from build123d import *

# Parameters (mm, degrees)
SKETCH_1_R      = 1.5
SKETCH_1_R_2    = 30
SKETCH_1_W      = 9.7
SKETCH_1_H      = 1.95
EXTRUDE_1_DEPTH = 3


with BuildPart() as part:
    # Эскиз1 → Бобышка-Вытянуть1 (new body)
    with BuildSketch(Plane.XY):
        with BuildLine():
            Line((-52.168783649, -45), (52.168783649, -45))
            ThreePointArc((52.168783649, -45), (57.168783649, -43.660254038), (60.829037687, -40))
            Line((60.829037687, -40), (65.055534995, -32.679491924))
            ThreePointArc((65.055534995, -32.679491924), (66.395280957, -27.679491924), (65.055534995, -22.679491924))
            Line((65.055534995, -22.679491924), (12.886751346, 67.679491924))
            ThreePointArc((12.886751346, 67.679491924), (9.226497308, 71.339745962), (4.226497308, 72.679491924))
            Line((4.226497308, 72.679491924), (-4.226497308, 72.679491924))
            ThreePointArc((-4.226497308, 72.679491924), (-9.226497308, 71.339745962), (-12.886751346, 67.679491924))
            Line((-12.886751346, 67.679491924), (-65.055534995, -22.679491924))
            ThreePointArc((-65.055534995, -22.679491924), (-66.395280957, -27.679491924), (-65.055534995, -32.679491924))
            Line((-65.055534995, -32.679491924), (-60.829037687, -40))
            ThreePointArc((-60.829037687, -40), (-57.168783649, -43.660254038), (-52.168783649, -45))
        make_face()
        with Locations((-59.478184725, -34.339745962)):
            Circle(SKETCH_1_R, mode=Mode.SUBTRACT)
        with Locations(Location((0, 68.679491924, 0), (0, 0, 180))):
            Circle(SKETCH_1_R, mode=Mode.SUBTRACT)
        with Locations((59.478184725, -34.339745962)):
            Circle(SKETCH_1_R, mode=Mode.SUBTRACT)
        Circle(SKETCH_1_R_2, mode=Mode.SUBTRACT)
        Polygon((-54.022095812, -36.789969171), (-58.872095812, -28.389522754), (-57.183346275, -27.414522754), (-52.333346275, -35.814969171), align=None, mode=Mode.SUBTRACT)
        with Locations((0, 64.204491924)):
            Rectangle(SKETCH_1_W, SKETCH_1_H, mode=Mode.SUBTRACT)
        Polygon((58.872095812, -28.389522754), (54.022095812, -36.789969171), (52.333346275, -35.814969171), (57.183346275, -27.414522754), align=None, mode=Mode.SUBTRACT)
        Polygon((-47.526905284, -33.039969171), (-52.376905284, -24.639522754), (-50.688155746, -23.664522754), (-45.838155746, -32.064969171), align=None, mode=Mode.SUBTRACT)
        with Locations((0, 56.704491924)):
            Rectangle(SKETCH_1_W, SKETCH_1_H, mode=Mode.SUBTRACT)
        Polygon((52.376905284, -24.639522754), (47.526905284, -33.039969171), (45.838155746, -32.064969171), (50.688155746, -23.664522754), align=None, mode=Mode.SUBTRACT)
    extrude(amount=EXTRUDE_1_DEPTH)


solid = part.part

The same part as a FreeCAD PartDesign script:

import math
import FreeCAD as App
import Part
import Sketcher

V = App.Vector
Q = App.Units.Quantity

doc = App.newDocument("Part")
params = doc.addObject("Spreadsheet::Sheet", "Params")
for row, (alias, value) in enumerate([
    ("sketch1_diameter", "3 mm"),
    ("sketch1_diameter2", "60 mm"),
    ("sketch1_radius", "10 mm"),
    ("sketch1_width", "9.7 mm"),
    ("sketch1_length", "9.7 mm"),
    ("pad1_length", "3 mm"),
], start=1):
    params.set(f"A{row}", alias)
    params.set(f"B{row}", "=" + value)
    params.setAlias(f"B{row}", alias)

body = doc.addObject("PartDesign::Body", "Body")

# Sketch on XY plane
sketch1 = body.newObject("Sketcher::SketchObject", "Sketch")
sketch1.AttachmentSupport = (doc.getObject("XY_Plane"), [""])
sketch1.MapMode = "FlatFace"
sketch1.addGeometry([
    Part.LineSegment(V(-52.2, -45, 0), V(52.2, -45, 0)),  # 0
    Part.ArcOfCircle(Part.Circle(V(52.2, -35, 0), V(0, 0, 1), 10), math.radians(-90), math.radians(-30)),  # 1
    Part.LineSegment(V(60.8, -40, 0), V(65.1, -32.7, 0)),  # 2
    Part.ArcOfCircle(Part.Circle(V(56.4, -27.7, 0), V(0, 0, 1), 10), math.radians(-30), math.radians(30)),  # 3
    Part.LineSegment(V(65.1, -22.7, 0), V(12.9, 67.7, 0)),  # 4
    Part.ArcOfCircle(Part.Circle(V(4.2, 62.7, 0), V(0, 0, 1), 10), math.radians(30), math.radians(90)),  # 5
    Part.LineSegment(V(4.2, 72.7, 0), V(-4.2, 72.7, 0)),  # 6
    Part.ArcOfCircle(Part.Circle(V(-4.2, 62.7, 0), V(0, 0, 1), 10), math.radians(90), math.radians(150)),  # 7
    Part.LineSegment(V(-12.9, 67.7, 0), V(-65.1, -22.7, 0)),  # 8
    Part.ArcOfCircle(Part.Circle(V(-56.4, -27.7, 0), V(0, 0, 1), 10), math.radians(150), math.radians(210)),  # 9
    Part.LineSegment(V(-65.1, -32.7, 0), V(-60.8, -40, 0)),  # 10
    Part.ArcOfCircle(Part.Circle(V(-52.2, -35, 0), V(0, 0, 1), 10), math.radians(-150), math.radians(-90)),  # 11
    Part.Circle(V(-59.5, -34.3, 0), V(0, 0, 1), 1.5),  # 12
    Part.LineSegment(V(-52.3, -35.8, 0), V(-54, -36.8, 0)),  # 13
    Part.LineSegment(V(-54, -36.8, 0), V(-58.9, -28.4, 0)),  # 14
    Part.LineSegment(V(-58.9, -28.4, 0), V(-57.2, -27.4, 0)),  # 15
    Part.LineSegment(V(-57.2, -27.4, 0), V(-52.3, -35.8, 0)),  # 16
    Part.LineSegment(V(-45.8, -32.1, 0), V(-47.5, -33, 0)),  # 17
    Part.LineSegment(V(-47.5, -33, 0), V(-52.4, -24.6, 0)),  # 18
    Part.LineSegment(V(-52.4, -24.6, 0), V(-50.7, -23.7, 0)),  # 19
    Part.LineSegment(V(-50.7, -23.7, 0), V(-45.8, -32.1, 0)),  # 20
    Part.Circle(V(59.5, -34.3, 0), V(0, 0, 1), 1.5),  # 21
    Part.LineSegment(V(57.2, -27.4, 0), V(58.9, -28.4, 0)),  # 22
    Part.LineSegment(V(58.9, -28.4, 0), V(54, -36.8, 0)),  # 23
    Part.LineSegment(V(54, -36.8, 0), V(52.3, -35.8, 0)),  # 24
    Part.LineSegment(V(52.3, -35.8, 0), V(57.2, -27.4, 0)),  # 25
    Part.LineSegment(V(50.7, -23.7, 0), V(52.4, -24.6, 0)),  # 26
    Part.LineSegment(V(52.4, -24.6, 0), V(47.5, -33, 0)),  # 27
    Part.LineSegment(V(47.5, -33, 0), V(45.8, -32.1, 0)),  # 28
    Part.LineSegment(V(45.8, -32.1, 0), V(50.7, -23.7, 0)),  # 29
    Part.Circle(V(0, 0, 0), V(0, 0, 1), 30),  # 30
    Part.LineSegment(V(4.8, 55.7, 0), V(-4.8, 55.7, 0)),  # 31
    Part.LineSegment(V(-4.8, 55.7, 0), V(-4.8, 57.7, 0)),  # 32
    Part.LineSegment(V(-4.8, 57.7, 0), V(4.8, 57.7, 0)),  # 33
    Part.LineSegment(V(4.8, 57.7, 0), V(4.8, 55.7, 0)),  # 34
    Part.LineSegment(V(4.8, 63.2, 0), V(-4.8, 63.2, 0)),  # 35
    Part.LineSegment(V(-4.8, 63.2, 0), V(-4.8, 65.2, 0)),  # 36
    Part.LineSegment(V(-4.8, 65.2, 0), V(4.8, 65.2, 0)),  # 37
    Part.LineSegment(V(4.8, 65.2, 0), V(4.8, 63.2, 0)),  # 38
    Part.Circle(V(0, 68.7, 0), V(0, 0, 1), 1.5),  # 39
], False)
sketch1.addConstraint([
    Sketcher.Constraint("Tangent", 0, 2, 1, 1),
    Sketcher.Constraint("Tangent", 1, 2, 2, 1),
    Sketcher.Constraint("Tangent", 2, 2, 3, 1),
    Sketcher.Constraint("Tangent", 3, 2, 4, 1),
    Sketcher.Constraint("Tangent", 4, 2, 5, 1),
    Sketcher.Constraint("Tangent", 5, 2, 6, 1),
    Sketcher.Constraint("Tangent", 6, 2, 7, 1),
    Sketcher.Constraint("Tangent", 7, 2, 8, 1),
    Sketcher.Constraint("Tangent", 8, 2, 9, 1),
    Sketcher.Constraint("Tangent", 9, 2, 10, 1),
    Sketcher.Constraint("Tangent", 10, 2, 11, 1),
    Sketcher.Constraint("Tangent", 11, 2, 0, 1),
    Sketcher.Constraint("Coincident", 13, 2, 14, 1),
    Sketcher.Constraint("Coincident", 14, 2, 15, 1),
    Sketcher.Constraint("Coincident", 15, 2, 16, 1),
    Sketcher.Constraint("Coincident", 16, 2, 13, 1),
    Sketcher.Constraint("Coincident", 17, 2, 18, 1),
    Sketcher.Constraint("Coincident", 18, 2, 19, 1),
    Sketcher.Constraint("Coincident", 19, 2, 20, 1),
    Sketcher.Constraint("Coincident", 20, 2, 17, 1),
    Sketcher.Constraint("Coincident", 22, 2, 23, 1),
    Sketcher.Constraint("Coincident", 23, 2, 24, 1),
    Sketcher.Constraint("Coincident", 24, 2, 25, 1),
    Sketcher.Constraint("Coincident", 25, 2, 22, 1),
    Sketcher.Constraint("Coincident", 26, 2, 27, 1),
    Sketcher.Constraint("Coincident", 27, 2, 28, 1),
    Sketcher.Constraint("Coincident", 28, 2, 29, 1),
    Sketcher.Constraint("Coincident", 29, 2, 26, 1),
    Sketcher.Constraint("Coincident", 31, 2, 32, 1),
    Sketcher.Constraint("Coincident", 32, 2, 33, 1),
    Sketcher.Constraint("Coincident", 33, 2, 34, 1),
    Sketcher.Constraint("Coincident", 34, 2, 31, 1),
    Sketcher.Constraint("Coincident", 35, 2, 36, 1),
    Sketcher.Constraint("Coincident", 36, 2, 37, 1),
    Sketcher.Constraint("Coincident", 37, 2, 38, 1),
    Sketcher.Constraint("Coincident", 38, 2, 35, 1),
    Sketcher.Constraint("Horizontal", 0),
    Sketcher.Constraint("Horizontal", 6),
    Sketcher.Constraint("Horizontal", 31),
    Sketcher.Constraint("Vertical", 32),
    Sketcher.Constraint("Horizontal", 33),
    Sketcher.Constraint("Vertical", 34),
    Sketcher.Constraint("Horizontal", 35),
    Sketcher.Constraint("Vertical", 36),
    Sketcher.Constraint("Horizontal", 37),
    Sketcher.Constraint("Vertical", 38),
    Sketcher.Constraint("Coincident", 30, 3, -1, 1),
    Sketcher.Constraint("Equal", 1, 3),
    Sketcher.Constraint("Equal", 3, 5),
    Sketcher.Constraint("Equal", 5, 7),
    Sketcher.Constraint("Equal", 7, 9),
    Sketcher.Constraint("Equal", 9, 11),
    Sketcher.Constraint("Equal", 12, 21),
    Sketcher.Constraint("Equal", 21, 39),
    Sketcher.Constraint("Symmetric", 3, 3, 9, 3, -2),
    Sketcher.Constraint("Symmetric", 12, 3, 21, 3, -2),
    Sketcher.Constraint("Symmetric", 14, 2, 22, 2, -2),
    Sketcher.Constraint("Symmetric", 13, 2, 23, 2, -2),
    Sketcher.Constraint("Symmetric", 16, 2, 24, 2, -2),
    Sketcher.Constraint("Symmetric", 15, 2, 25, 2, -2),
    Sketcher.Constraint("Symmetric", 18, 2, 26, 2, -2),
    Sketcher.Constraint("Symmetric", 17, 2, 27, 2, -2),
    Sketcher.Constraint("Symmetric", 20, 2, 28, 2, -2),
    Sketcher.Constraint("Symmetric", 19, 2, 29, 2, -2),
    Sketcher.Constraint("PointOnObject", 39, 3, -2),
    Sketcher.Constraint("Parallel", 2, 8),
    Sketcher.Constraint("Parallel", 4, 10),
    Sketcher.Constraint("Perpendicular", 10, 13),
    Sketcher.Constraint("Perpendicular", 13, 14),
    Sketcher.Constraint("Perpendicular", 14, 15),
    Sketcher.Constraint("Perpendicular", 15, 16),
    Sketcher.Constraint("Perpendicular", 16, 17),
    Sketcher.Constraint("Perpendicular", 17, 18),
    Sketcher.Constraint("Perpendicular", 18, 19),
    Sketcher.Constraint("Perpendicular", 19, 20),
    Sketcher.Constraint("Perpendicular", 8, 22),
    Sketcher.Constraint("Vertical", 32, 2, 35, 2),
    Sketcher.Constraint("Vertical", 34, 2, 37, 2),
    Sketcher.Constraint("Equal", 34, 36),
    Sketcher.Constraint("Equal", 15, 17),
    Sketcher.Constraint("Equal", 16, 18),
    Sketcher.Constraint("Diameter", 12, 3.0),
    Sketcher.Constraint("Diameter", 30, 60.0),
    Sketcher.Constraint("Radius", 1, 10.0),
    Sketcher.Constraint("Angle", 2, Q("60 deg")),
    Sketcher.Constraint("DistanceX", 31, 2, 31, 1, 9.7),
    Sketcher.Constraint("DistanceY", 1, 3, -1, 1, 35.0),
    Sketcher.Constraint("DistanceY", 5, 3, 39, 3, 6.0),
    Sketcher.Constraint("DistanceY", 32, 2, 7, 3, 5.0),
    Sketcher.Constraint("Distance", 14, 9.7),
    Sketcher.Constraint("DistanceY", 32, 1, 32, 2, 1.95),
    Sketcher.Constraint("DistanceY", 31, 2, 35, 2, 7.5),
    Sketcher.Constraint("Distance", 13, 1.95),
    Sketcher.Constraint("DistanceX", 31, 2, -1, 1, 4.85),
    Sketcher.Constraint("DistanceY", 13, 2, 17, 2, 3.75),
    Sketcher.Constraint("DistanceX", 12, 3, 11, 3, 7.309401),
    Sketcher.Constraint("DistanceX", 0, 1, 0, 2, 104.337567),
    Sketcher.Constraint("DistanceX", 6, 2, 6, 1, 8.452995),
    Sketcher.Constraint("DistanceX", -1, 1, 3, 3, 56.395281),
    Sketcher.Constraint("DistanceY", 13, 2, -1, 1, 36.789969),
    Sketcher.Constraint("DistanceX", 12, 3, 13, 2, 5.456089),
    Sketcher.Constraint("DistanceX", 11, 3, 17, 2, 4.641878),
    Sketcher.Constraint("DistanceY", 12, 3, -1, 1, 34.339746),
])
sketch1.setExpression("Constraints[81]", "Params.sketch1_diameter")
sketch1.setExpression("Constraints[82]", "Params.sketch1_diameter2")
sketch1.setExpression("Constraints[83]", "Params.sketch1_radius")
sketch1.setExpression("Constraints[85]", "Params.sketch1_width")
sketch1.setExpression("Constraints[89]", "Params.sketch1_length")
pad1 = body.newObject("PartDesign::Pad", "Pad")
pad1.Profile = sketch1
pad1.setExpression("Length", "Params.pad1_length")

doc.recompute()
